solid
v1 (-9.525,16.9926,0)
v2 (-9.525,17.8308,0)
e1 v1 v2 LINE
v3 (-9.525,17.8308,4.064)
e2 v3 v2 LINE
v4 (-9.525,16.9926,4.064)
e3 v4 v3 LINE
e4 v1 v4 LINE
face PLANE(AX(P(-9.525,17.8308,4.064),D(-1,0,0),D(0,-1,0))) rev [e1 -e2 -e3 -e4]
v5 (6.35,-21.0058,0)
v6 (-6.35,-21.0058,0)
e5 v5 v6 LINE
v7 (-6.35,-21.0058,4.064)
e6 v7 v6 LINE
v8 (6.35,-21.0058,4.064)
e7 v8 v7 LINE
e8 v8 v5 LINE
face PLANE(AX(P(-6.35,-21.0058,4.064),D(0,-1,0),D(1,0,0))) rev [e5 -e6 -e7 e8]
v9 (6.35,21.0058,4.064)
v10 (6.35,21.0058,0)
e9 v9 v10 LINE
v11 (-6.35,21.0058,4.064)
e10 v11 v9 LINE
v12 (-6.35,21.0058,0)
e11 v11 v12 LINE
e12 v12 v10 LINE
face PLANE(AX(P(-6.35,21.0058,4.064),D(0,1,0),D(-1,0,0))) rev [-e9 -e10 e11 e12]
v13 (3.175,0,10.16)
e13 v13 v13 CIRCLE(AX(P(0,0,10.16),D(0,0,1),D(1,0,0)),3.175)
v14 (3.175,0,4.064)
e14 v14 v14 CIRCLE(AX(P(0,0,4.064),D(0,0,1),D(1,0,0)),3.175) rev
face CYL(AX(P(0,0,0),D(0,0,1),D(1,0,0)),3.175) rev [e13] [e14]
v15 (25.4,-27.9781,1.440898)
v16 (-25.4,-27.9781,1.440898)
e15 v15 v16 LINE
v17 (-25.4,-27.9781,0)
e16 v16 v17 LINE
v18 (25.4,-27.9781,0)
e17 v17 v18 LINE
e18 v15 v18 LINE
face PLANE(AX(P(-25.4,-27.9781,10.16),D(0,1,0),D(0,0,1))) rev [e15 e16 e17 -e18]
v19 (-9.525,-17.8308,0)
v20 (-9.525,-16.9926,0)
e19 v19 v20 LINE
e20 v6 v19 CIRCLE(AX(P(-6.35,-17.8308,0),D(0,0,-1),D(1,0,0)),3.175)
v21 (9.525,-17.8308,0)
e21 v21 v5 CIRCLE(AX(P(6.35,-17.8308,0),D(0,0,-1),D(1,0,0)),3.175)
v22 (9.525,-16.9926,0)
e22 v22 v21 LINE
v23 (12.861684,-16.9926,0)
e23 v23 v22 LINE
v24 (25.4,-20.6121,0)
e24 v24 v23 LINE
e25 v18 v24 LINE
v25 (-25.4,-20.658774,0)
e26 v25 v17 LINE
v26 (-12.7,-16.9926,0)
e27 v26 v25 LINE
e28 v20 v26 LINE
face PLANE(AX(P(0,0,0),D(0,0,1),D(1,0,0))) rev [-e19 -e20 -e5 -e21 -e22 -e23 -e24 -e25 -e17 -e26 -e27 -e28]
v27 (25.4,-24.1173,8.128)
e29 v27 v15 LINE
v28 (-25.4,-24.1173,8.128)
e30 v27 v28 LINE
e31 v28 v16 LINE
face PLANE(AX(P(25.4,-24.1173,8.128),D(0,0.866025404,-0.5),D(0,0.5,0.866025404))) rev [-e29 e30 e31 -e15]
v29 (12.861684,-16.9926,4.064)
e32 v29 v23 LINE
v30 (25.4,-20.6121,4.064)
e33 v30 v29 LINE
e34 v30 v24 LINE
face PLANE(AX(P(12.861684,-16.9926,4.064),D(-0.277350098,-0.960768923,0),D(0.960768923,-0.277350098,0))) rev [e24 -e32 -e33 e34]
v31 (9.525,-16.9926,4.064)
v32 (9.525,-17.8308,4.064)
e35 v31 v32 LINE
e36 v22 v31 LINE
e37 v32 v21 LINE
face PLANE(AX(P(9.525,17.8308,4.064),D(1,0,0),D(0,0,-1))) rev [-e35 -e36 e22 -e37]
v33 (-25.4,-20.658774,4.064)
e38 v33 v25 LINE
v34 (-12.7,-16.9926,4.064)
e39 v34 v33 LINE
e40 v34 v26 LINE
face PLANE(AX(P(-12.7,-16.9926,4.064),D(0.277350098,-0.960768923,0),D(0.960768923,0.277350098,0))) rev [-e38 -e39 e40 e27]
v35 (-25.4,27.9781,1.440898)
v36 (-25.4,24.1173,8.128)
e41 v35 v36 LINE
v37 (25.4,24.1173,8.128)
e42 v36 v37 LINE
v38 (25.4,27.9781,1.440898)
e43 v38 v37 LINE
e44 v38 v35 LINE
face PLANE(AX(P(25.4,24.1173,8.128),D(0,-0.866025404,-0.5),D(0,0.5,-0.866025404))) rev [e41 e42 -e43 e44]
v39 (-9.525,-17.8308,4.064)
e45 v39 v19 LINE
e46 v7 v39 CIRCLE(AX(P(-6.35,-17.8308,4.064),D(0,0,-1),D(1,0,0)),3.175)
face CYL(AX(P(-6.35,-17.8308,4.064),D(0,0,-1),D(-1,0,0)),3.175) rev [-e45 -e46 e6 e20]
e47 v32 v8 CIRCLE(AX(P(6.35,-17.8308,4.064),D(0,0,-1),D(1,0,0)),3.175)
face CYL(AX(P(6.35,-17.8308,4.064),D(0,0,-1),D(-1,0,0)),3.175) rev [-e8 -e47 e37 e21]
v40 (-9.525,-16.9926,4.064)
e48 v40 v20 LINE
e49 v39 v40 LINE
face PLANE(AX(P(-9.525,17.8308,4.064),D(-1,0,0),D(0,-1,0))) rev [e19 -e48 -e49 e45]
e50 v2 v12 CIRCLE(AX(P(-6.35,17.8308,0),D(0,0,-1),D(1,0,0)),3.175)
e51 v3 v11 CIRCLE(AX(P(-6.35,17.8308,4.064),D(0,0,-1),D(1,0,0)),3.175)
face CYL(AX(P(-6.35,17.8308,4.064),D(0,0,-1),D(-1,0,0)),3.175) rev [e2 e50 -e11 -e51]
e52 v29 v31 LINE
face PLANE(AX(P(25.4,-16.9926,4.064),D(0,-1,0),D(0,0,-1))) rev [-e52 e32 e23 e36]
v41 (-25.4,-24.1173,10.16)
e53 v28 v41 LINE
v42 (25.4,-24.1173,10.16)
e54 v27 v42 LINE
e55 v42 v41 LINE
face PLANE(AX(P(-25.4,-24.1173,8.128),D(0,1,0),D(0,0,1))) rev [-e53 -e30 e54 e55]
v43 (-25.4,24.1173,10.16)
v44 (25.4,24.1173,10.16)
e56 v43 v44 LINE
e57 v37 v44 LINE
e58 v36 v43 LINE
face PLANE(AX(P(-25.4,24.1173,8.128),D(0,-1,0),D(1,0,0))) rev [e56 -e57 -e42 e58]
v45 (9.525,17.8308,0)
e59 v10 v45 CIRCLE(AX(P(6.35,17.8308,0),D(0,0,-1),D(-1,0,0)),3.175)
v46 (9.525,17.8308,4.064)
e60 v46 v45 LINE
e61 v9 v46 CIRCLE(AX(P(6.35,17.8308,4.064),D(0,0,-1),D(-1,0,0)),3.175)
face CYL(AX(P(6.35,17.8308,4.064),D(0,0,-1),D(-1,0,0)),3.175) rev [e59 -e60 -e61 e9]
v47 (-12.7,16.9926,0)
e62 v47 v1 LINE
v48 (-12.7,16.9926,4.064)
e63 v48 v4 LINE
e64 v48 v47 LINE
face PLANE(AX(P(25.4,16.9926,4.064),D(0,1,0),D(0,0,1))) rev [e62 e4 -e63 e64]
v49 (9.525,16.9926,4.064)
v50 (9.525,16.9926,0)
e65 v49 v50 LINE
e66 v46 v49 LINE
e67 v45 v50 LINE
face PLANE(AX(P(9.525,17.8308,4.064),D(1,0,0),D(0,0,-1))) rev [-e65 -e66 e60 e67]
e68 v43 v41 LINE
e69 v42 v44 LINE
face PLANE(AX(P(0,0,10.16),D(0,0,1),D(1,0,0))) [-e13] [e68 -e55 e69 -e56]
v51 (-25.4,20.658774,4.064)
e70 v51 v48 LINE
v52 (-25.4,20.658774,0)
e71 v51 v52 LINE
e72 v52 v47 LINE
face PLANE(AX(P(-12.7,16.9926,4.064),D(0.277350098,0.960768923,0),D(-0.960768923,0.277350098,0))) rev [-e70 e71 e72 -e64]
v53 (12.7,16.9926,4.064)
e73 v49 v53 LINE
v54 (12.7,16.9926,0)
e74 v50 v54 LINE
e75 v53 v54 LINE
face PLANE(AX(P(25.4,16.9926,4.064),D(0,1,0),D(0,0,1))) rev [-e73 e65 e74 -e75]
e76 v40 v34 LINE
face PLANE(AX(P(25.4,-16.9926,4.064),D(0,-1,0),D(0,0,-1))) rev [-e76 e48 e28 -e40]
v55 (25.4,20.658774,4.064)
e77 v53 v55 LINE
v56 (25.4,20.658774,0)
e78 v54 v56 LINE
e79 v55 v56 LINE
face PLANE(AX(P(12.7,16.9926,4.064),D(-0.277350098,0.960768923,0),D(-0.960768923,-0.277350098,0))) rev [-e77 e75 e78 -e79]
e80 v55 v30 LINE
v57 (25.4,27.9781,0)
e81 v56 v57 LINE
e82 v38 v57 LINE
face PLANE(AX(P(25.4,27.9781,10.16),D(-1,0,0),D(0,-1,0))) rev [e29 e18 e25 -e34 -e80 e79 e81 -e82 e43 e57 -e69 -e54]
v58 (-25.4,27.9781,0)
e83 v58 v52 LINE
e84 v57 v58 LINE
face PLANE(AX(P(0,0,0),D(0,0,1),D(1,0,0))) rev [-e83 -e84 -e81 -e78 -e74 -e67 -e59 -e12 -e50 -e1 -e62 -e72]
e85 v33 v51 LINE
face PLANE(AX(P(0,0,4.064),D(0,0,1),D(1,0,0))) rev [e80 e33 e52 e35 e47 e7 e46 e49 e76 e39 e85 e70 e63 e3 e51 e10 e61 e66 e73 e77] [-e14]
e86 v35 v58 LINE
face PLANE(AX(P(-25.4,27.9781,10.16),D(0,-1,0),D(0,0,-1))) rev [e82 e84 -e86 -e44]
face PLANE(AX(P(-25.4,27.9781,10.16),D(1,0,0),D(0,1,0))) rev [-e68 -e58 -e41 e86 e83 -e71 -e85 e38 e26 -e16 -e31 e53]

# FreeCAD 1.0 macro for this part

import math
import FreeCAD as App
import Part
import Sketcher
Q = App.Units.Quantity

doc = App.newDocument("Part")
body = doc.addObject("PartDesign::Body", "Body")

sketch1 = doc.addObject("Sketcher::SketchObject", "Sketch")
body.addObject(sketch1)
sketch1.AttachmentSupport = (doc.XY_Plane, [""])
sketch1.MapMode = "FlatFace"
sketch1.addGeometry([
    Part.LineSegment(App.Vector(-25, 28, 0), App.Vector(-25, -28, 0)),
    Part.LineSegment(App.Vector(-25, -28, 0), App.Vector(25, -28, 0)),
    Part.LineSegment(App.Vector(25, -28, 0), App.Vector(25, 28, 0)),
    Part.LineSegment(App.Vector(25, 28, 0), App.Vector(-25, 28, 0)),
], False)
sketch1.addConstraint([
    Sketcher.Constraint("Coincident", 0, 2, 1, 1),
    Sketcher.Constraint("Coincident", 1, 2, 2, 1),
    Sketcher.Constraint("Coincident", 2, 2, 3, 1),
    Sketcher.Constraint("Coincident", 3, 2, 0, 1),
    Sketcher.Constraint("Vertical", 0),
    Sketcher.Constraint("Horizontal", 1),
    Sketcher.Constraint("Vertical", 2),
    Sketcher.Constraint("Horizontal", 3),
    Sketcher.Constraint("Symmetric", 0, 2, 2, 2, -1, 1),
    Sketcher.Constraint("DistanceX", 1, 1, 1, 2, Q("2 in")),
    Sketcher.Constraint("DistanceY", 0, 2, 0, 1, Q("2.203 in")),
])
pad1 = doc.addObject("PartDesign::Pad", "Pad")
body.addObject(pad1)
pad1.Profile = sketch1
pad1.Length = Q("0.4 in")

sketch2 = doc.addObject("Sketcher::SketchObject", "Sketch001")
body.addObject(sketch2)
sketch2.AttachmentSupport = (doc.XY_Plane, [""])
sketch2.MapMode = "FlatFace"
sketch2.AttachmentOffset = App.Placement(App.Vector(0, 0, 0.4 * 25.4), App.Rotation())
sketch2.addGeometry([
    Part.LineSegment(App.Vector(-25.4, 28, 0), App.Vector(-25.4, 24.1, 0)),
    Part.LineSegment(App.Vector(-25.4, 24.1, 0), App.Vector(25.4, 24.1, 0)),
    Part.LineSegment(App.Vector(25.4, 24.1, 0), App.Vector(25.4, 28, 0)),
    Part.LineSegment(App.Vector(25.4, 28, 0), App.Vector(-25.4, 28, 0)),
    Part.LineSegment(App.Vector(-25.4, -24.1, 0), App.Vector(-25.4, -28, 0)),
    Part.LineSegment(App.Vector(-25.4, -28, 0), App.Vector(25.4, -28, 0)),
    Part.LineSegment(App.Vector(25.4, -28, 0), App.Vector(25.4, -24.1, 0)),
    Part.LineSegment(App.Vector(25.4, -24.1, 0), App.Vector(-25.4, -24.1, 0)),
], False)
sketch2.addConstraint([
    Sketcher.Constraint("Coincident", 0, 2, 1, 1),
    Sketcher.Constraint("Coincident", 1, 2, 2, 1),
    Sketcher.Constraint("Coincident", 2, 2, 3, 1),
    Sketcher.Constraint("Coincident", 3, 2, 0, 1),
    Sketcher.Constraint("Coincident", 4, 2, 5, 1),
    Sketcher.Constraint("Coincident", 5, 2, 6, 1),
    Sketcher.Constraint("Coincident", 6, 2, 7, 1),
    Sketcher.Constraint("Coincident", 7, 2, 4, 1),
    Sketcher.Constraint("Vertical", 0),
    Sketcher.Constraint("Horizontal", 1),
    Sketcher.Constraint("Vertical", 2),
    Sketcher.Constraint("Horizontal", 3),
    Sketcher.Constraint("Vertical", 4),
    Sketcher.Constraint("Horizontal", 5),
    Sketcher.Constraint("Vertical", 6),
    Sketcher.Constraint("Horizontal", 7),
    Sketcher.Constraint("Symmetric", 2, 2, 4, 2, -1, 1),
    Sketcher.Constraint("Symmetric", 0, 2, 6, 2, -1, 1),
    Sketcher.Constraint("Vertical", 3, 2, 4, 2),
    Sketcher.Constraint("DistanceX", 1, 1, 1, 2, Q("2 in")),
    Sketcher.Constraint("DistanceY", 0, 2, 0, 1, Q("0.152 in")),
    Sketcher.Constraint("DistanceY", 4, 2, 0, 2, Q("2.051 in")),
])
pocket1 = doc.addObject("PartDesign::Pocket", "Pocket")
body.addObject(pocket1)
pocket1.Profile = sketch2
pocket1.Length = Q("0.08 in")

sketch3 = doc.addObject("Sketcher::SketchObject", "Sketch002")
body.addObject(sketch3)
sketch3.AttachmentSupport = (doc.YZ_Plane, [""])
sketch3.MapMode = "FlatFace"
sketch3.AttachmentOffset = App.Placement(App.Vector(0, 0, -1 * 25.4), App.Rotation())
sketch3.addGeometry([
    Part.LineSegment(App.Vector(28, 1.4, 0), App.Vector(24.1, 8.1, 0)),
    Part.LineSegment(App.Vector(24.1, 8.1, 0), App.Vector(28, 8.1, 0)),
    Part.LineSegment(App.Vector(28, 8.1, 0), App.Vector(28, 1.4, 0)),
    Part.LineSegment(App.Vector(-24.1, 8.1, 0), App.Vector(-28, 1.4, 0)),
    Part.LineSegment(App.Vector(-28, 1.4, 0), App.Vector(-28, 8.1, 0)),
    Part.LineSegment(App.Vector(-28, 8.1, 0), App.Vector(-24.1, 8.1, 0)),
], False)
sketch3.addConstraint([
    Sketcher.Constraint("Coincident", 0, 2, 1, 1),
    Sketcher.Constraint("Coincident", 1, 2, 2, 1),
    Sketcher.Constraint("Coincident", 2, 2, 0, 1),
    Sketcher.Constraint("Coincident", 3, 2, 4, 1),
    Sketcher.Constraint("Coincident", 4, 2, 5, 1),
    Sketcher.Constraint("Coincident", 5, 2, 3, 1),
    Sketcher.Constraint("Horizontal", 1),
    Sketcher.Constraint("Vertical", 2),
    Sketcher.Constraint("Vertical", 4),
    Sketcher.Constraint("Horizontal", 5),
    Sketcher.Constraint("Symmetric", 2, 2, 3, 2, -2),
    Sketcher.Constraint("Symmetric", 0, 2, 5, 2, -2),
    Sketcher.Constraint("Angle", 0, Q("120 deg")),
    Sketcher.Constraint("DistanceX", 1, 1, 1, 2, Q("0.152 in")),
    Sketcher.Constraint("DistanceY", -1, 1, 0, 2, Q("0.32 in")),
    Sketcher.Constraint("DistanceX", 3, 2, 0, 2, Q("2.051 in")),
])
pocket2 = doc.addObject("PartDesign::Pocket", "Pocket001")
body.addObject(pocket2)
pocket2.Profile = sketch3
pocket2.Type = "ThroughAll"
pocket2.Reversed = True

sketch4 = doc.addObject("Sketcher::SketchObject", "Sketch003")
body.addObject(sketch4)
sketch4.AttachmentSupport = (doc.XY_Plane, [""])
sketch4.MapMode = "FlatFace"
sketch4.AttachmentOffset = App.Placement(App.Vector(0, 0, 0.4 * 25.4), App.Rotation())
sketch4.addGeometry(Part.Circle(App.Vector(0, 0, 0), App.Vector(0, 0, 1), 3.2), False)
sketch4.addConstraint([
    Sketcher.Constraint("Coincident", 0, 3, -1, 1),
    Sketcher.Constraint("Diameter", 0, Q("0.25 in")),
])
pocket3 = doc.addObject("PartDesign::Pocket", "Pocket002")
body.addObject(pocket3)
pocket3.Profile = sketch4
pocket3.Type = "ThroughAll"

sketch5 = doc.addObject("Sketcher::SketchObject", "Sketch004")
body.addObject(sketch5)
sketch5.AttachmentSupport = (doc.XY_Plane, [""])
sketch5.MapMode = "FlatFace"
sketch5.addGeometry([
    Part.LineSegment(App.Vector(25, 17, 0), App.Vector(25, -17, 0)),
    Part.LineSegment(App.Vector(25, -17, 0), App.Vector(-25, -17, 0)),
    Part.LineSegment(App.Vector(-25, -17, 0), App.Vector(-25, 17, 0)),
    Part.LineSegment(App.Vector(-25, 17, 0), App.Vector(25, 17, 0)),
], False)
sketch5.addConstraint([
    Sketcher.Constraint("Coincident", 0, 2, 1, 1),
    Sketcher.Constraint("Coincident", 1, 2, 2, 1),
    Sketcher.Constraint("Coincident", 2, 2, 3, 1),
    Sketcher.Constraint("Coincident", 3, 2, 0, 1),
    Sketcher.Constraint("Vertical", 0),
    Sketcher.Constraint("Horizontal", 1),
    Sketcher.Constraint("Vertical", 2),
    Sketcher.Constraint("Horizontal", 3),
    Sketcher.Constraint("Symmetric", 0, 2, 2, 2, -1, 1),
    Sketcher.Constraint("DistanceX", 1, 2, 1, 1, Q("2 in")),
    Sketcher.Constraint("DistanceY", 0, 2, 0, 1, Q("1.338 in")),
])
pocket4 = doc.addObject("PartDesign::Pocket", "Pocket003")
body.addObject(pocket4)
pocket4.Profile = sketch5
pocket4.Length = Q("0.16 in")
pocket4.Reversed = True

sketch6 = doc.addObject("Sketcher::SketchObject", "Sketch005")
body.addObject(sketch6)
sketch6.AttachmentSupport = (doc.XY_Plane, [""])
sketch6.MapMode = "FlatFace"
sketch6.addGeometry([
    Part.LineSegment(App.Vector(-6.3, 21, 0), App.Vector(6.3, 21, 0)),
    Part.ArcOfCircle(Part.Circle(App.Vector(6.3, 17.8, 0), App.Vector(0, 0, 1), 3.2), math.radians(0), math.radians(90)),
    Part.LineSegment(App.Vector(9.5, 17.8, 0), App.Vector(9.5, -17.8, 0)),
    Part.ArcOfCircle(Part.Circle(App.Vector(6.3, -17.8, 0), App.Vector(0, 0, 1), 3.2), math.radians(-90), math.radians(0)),
    Part.LineSegment(App.Vector(6.3, -21, 0), App.Vector(-6.3, -21, 0)),
    Part.ArcOfCircle(Part.Circle(App.Vector(-6.3, -17.8, 0), App.Vector(0, 0, 1), 3.2), math.radians(-180), math.radians(-90)),
    Part.LineSegment(App.Vector(-9.5, -17.8, 0), App.Vector(-9.5, 17.8, 0)),
    Part.ArcOfCircle(Part.Circle(App.Vector(-6.3, 17.8, 0), App.Vector(0, 0, 1), 3.2), math.radians(90), math.radians(180)),
], False)
sketch6.addConstraint([
    Sketcher.Constraint("Tangent", 0, 2, 1, 2),
    Sketcher.Constraint("Tangent", 1, 1, 2, 1),
    Sketcher.Constraint("Tangent", 2, 2, 3, 2),
    Sketcher.Constraint("Tangent", 3, 1, 4, 1),
    Sketcher.Constraint("Tangent", 4, 2, 5, 2),
    Sketcher.Constraint("Tangent", 5, 1, 6, 1),
    Sketcher.Constraint("Tangent", 6, 2, 7, 2),
    Sketcher.Constraint("Tangent", 7, 1, 0, 1),
    Sketcher.Constraint("Horizontal", 0),
    Sketcher.Constraint("Vertical", 2),
    Sketcher.Constraint("Horizontal", 4),
    Sketcher.Constraint("Vertical", 6),
    Sketcher.Constraint("Equal", 1, 3),
    Sketcher.Constraint("Equal", 3, 5),
    Sketcher.Constraint("Equal", 5, 7),
    Sketcher.Constraint("Symmetric", 1, 3, 5, 3, -1, 1),
    Sketcher.Constraint("DistanceX", 0, 1, 0, 2, Q("0.5 in")),
    Sketcher.Constraint("Radius", 1, Q("0.125 in")),
    Sketcher.Constraint("DistanceY", 2, 2, 2, 1, Q("1.404 in")),
])
pocket5 = doc.addObject("PartDesign::Pocket", "Pocket004")
body.addObject(pocket5)
pocket5.Profile = sketch6
pocket5.Length = Q("0.16 in")
pocket5.Reversed = True

sketch7 = doc.addObject("Sketcher::SketchObject", "Sketch006")
body.addObject(sketch7)
sketch7.AttachmentSupport = (doc.XY_Plane, [""])
sketch7.MapMode = "FlatFace"
sketch7.addGeometry([
    Part.LineSegment(App.Vector(12.7, 17, 0), App.Vector(25.4, 20.7, 0)),
    Part.LineSegment(App.Vector(25.4, 20.7, 0), App.Vector(25.4, 17, 0)),
    Part.LineSegment(App.Vector(25.4, 17, 0), App.Vector(12.7, 17, 0)),
    Part.LineSegment(App.Vector(25.4, -20.6, 0), App.Vector(12.9, -17, 0)),
    Part.LineSegment(App.Vector(12.9, -17, 0), App.Vector(25.4, -17, 0)),
    Part.LineSegment(App.Vector(25.4, -17, 0), App.Vector(25.4, -20.6, 0)),
    Part.LineSegment(App.Vector(-12.7, -17, 0), App.Vector(-25.4, -20.7, 0)),
    Part.LineSegment(App.Vector(-25.4, -20.7, 0), App.Vector(-25.4, -17, 0)),
    Part.LineSegment(App.Vector(-25.4, -17, 0), App.Vector(-12.7, -17, 0)),
    Part.LineSegment(App.Vector(-25.4, 20.7, 0), App.Vector(-12.7, 17, 0)),
    Part.LineSegment(App.Vector(-12.7, 17, 0), App.Vector(-25.4, 17, 0)),
    Part.LineSegment(App.Vector(-25.4, 17, 0), App.Vector(-25.4, 20.7, 0)),
], False)
sketch7.addConstraint([
    Sketcher.Constraint("Coincident", 0, 2, 1, 1),
    Sketcher.Constraint("Coincident", 1, 2, 2, 1),
    Sketcher.Constraint("Coincident", 2, 2, 0, 1),
    Sketcher.Constraint("Coincident", 3, 2, 4, 1),
    Sketcher.Constraint("Coincident", 4, 2, 5, 1),
    Sketcher.Constraint("Coincident", 5, 2, 3, 1),
    Sketcher.Constraint("Coincident", 6, 2, 7, 1),
    Sketcher.Constraint("Coincident", 7, 2, 8, 1),
    Sketcher.Constraint("Coincident", 8, 2, 6, 1),
    Sketcher.Constraint("Coincident", 9, 2, 10, 1),
    Sketcher.Constraint("Coincident", 10, 2, 11, 1),
    Sketcher.Constraint("Coincident", 11, 2, 9, 1),
    Sketcher.Constraint("Vertical", 1),
    Sketcher.Constraint("Horizontal", 2),
    Sketcher.Constraint("Horizontal", 4),
    Sketcher.Constraint("Vertical", 5),
    Sketcher.Constraint("Vertical", 7),
    Sketcher.Constraint("Horizontal", 8),
    Sketcher.Constraint("Horizontal", 10),
    Sketcher.Constraint("Vertical", 11),
    Sketcher.Constraint("Symmetric", 0, 2, 6, 2, -1, 1),
    Sketcher.Constraint("Symmetric", 2, 2, 8, 2, -1, 1),
    Sketcher.Constraint("Symmetric", 4, 2, 10, 2, -1, 1),
    Sketcher.Constraint("Symmetric", 4, 2, 7, 2, -2),
    Sketcher.Constraint("Parallel", 3, 9),
    Sketcher.Constraint("Horizontal", 0, 2, 11, 2),
    Sketcher.Constraint("Vertical", 8, 2, 9, 2),
    Sketcher.Constraint("DistanceX", 2, 2, 2, 1, Q("0.5 in")),
    Sketcher.Constraint("DistanceX", -1, 1, 0, 2, Q("1 in")),
    Sketcher.Constraint("DistanceY", 5, 2, 5, 1, Q("0.1425 in")),
    Sketcher.Constraint("DistanceY", -1, 1, 1, 2, Q("0.669 in")),
    Sketcher.Constraint("Distance", 0, 13.218579),
])
pocket6 = doc.addObject("PartDesign::Pocket", "Pocket005")
body.addObject(pocket6)
pocket6.Profile = sketch7
pocket6.Length = Q("0.16 in")
pocket6.Reversed = True

doc.recompute()
